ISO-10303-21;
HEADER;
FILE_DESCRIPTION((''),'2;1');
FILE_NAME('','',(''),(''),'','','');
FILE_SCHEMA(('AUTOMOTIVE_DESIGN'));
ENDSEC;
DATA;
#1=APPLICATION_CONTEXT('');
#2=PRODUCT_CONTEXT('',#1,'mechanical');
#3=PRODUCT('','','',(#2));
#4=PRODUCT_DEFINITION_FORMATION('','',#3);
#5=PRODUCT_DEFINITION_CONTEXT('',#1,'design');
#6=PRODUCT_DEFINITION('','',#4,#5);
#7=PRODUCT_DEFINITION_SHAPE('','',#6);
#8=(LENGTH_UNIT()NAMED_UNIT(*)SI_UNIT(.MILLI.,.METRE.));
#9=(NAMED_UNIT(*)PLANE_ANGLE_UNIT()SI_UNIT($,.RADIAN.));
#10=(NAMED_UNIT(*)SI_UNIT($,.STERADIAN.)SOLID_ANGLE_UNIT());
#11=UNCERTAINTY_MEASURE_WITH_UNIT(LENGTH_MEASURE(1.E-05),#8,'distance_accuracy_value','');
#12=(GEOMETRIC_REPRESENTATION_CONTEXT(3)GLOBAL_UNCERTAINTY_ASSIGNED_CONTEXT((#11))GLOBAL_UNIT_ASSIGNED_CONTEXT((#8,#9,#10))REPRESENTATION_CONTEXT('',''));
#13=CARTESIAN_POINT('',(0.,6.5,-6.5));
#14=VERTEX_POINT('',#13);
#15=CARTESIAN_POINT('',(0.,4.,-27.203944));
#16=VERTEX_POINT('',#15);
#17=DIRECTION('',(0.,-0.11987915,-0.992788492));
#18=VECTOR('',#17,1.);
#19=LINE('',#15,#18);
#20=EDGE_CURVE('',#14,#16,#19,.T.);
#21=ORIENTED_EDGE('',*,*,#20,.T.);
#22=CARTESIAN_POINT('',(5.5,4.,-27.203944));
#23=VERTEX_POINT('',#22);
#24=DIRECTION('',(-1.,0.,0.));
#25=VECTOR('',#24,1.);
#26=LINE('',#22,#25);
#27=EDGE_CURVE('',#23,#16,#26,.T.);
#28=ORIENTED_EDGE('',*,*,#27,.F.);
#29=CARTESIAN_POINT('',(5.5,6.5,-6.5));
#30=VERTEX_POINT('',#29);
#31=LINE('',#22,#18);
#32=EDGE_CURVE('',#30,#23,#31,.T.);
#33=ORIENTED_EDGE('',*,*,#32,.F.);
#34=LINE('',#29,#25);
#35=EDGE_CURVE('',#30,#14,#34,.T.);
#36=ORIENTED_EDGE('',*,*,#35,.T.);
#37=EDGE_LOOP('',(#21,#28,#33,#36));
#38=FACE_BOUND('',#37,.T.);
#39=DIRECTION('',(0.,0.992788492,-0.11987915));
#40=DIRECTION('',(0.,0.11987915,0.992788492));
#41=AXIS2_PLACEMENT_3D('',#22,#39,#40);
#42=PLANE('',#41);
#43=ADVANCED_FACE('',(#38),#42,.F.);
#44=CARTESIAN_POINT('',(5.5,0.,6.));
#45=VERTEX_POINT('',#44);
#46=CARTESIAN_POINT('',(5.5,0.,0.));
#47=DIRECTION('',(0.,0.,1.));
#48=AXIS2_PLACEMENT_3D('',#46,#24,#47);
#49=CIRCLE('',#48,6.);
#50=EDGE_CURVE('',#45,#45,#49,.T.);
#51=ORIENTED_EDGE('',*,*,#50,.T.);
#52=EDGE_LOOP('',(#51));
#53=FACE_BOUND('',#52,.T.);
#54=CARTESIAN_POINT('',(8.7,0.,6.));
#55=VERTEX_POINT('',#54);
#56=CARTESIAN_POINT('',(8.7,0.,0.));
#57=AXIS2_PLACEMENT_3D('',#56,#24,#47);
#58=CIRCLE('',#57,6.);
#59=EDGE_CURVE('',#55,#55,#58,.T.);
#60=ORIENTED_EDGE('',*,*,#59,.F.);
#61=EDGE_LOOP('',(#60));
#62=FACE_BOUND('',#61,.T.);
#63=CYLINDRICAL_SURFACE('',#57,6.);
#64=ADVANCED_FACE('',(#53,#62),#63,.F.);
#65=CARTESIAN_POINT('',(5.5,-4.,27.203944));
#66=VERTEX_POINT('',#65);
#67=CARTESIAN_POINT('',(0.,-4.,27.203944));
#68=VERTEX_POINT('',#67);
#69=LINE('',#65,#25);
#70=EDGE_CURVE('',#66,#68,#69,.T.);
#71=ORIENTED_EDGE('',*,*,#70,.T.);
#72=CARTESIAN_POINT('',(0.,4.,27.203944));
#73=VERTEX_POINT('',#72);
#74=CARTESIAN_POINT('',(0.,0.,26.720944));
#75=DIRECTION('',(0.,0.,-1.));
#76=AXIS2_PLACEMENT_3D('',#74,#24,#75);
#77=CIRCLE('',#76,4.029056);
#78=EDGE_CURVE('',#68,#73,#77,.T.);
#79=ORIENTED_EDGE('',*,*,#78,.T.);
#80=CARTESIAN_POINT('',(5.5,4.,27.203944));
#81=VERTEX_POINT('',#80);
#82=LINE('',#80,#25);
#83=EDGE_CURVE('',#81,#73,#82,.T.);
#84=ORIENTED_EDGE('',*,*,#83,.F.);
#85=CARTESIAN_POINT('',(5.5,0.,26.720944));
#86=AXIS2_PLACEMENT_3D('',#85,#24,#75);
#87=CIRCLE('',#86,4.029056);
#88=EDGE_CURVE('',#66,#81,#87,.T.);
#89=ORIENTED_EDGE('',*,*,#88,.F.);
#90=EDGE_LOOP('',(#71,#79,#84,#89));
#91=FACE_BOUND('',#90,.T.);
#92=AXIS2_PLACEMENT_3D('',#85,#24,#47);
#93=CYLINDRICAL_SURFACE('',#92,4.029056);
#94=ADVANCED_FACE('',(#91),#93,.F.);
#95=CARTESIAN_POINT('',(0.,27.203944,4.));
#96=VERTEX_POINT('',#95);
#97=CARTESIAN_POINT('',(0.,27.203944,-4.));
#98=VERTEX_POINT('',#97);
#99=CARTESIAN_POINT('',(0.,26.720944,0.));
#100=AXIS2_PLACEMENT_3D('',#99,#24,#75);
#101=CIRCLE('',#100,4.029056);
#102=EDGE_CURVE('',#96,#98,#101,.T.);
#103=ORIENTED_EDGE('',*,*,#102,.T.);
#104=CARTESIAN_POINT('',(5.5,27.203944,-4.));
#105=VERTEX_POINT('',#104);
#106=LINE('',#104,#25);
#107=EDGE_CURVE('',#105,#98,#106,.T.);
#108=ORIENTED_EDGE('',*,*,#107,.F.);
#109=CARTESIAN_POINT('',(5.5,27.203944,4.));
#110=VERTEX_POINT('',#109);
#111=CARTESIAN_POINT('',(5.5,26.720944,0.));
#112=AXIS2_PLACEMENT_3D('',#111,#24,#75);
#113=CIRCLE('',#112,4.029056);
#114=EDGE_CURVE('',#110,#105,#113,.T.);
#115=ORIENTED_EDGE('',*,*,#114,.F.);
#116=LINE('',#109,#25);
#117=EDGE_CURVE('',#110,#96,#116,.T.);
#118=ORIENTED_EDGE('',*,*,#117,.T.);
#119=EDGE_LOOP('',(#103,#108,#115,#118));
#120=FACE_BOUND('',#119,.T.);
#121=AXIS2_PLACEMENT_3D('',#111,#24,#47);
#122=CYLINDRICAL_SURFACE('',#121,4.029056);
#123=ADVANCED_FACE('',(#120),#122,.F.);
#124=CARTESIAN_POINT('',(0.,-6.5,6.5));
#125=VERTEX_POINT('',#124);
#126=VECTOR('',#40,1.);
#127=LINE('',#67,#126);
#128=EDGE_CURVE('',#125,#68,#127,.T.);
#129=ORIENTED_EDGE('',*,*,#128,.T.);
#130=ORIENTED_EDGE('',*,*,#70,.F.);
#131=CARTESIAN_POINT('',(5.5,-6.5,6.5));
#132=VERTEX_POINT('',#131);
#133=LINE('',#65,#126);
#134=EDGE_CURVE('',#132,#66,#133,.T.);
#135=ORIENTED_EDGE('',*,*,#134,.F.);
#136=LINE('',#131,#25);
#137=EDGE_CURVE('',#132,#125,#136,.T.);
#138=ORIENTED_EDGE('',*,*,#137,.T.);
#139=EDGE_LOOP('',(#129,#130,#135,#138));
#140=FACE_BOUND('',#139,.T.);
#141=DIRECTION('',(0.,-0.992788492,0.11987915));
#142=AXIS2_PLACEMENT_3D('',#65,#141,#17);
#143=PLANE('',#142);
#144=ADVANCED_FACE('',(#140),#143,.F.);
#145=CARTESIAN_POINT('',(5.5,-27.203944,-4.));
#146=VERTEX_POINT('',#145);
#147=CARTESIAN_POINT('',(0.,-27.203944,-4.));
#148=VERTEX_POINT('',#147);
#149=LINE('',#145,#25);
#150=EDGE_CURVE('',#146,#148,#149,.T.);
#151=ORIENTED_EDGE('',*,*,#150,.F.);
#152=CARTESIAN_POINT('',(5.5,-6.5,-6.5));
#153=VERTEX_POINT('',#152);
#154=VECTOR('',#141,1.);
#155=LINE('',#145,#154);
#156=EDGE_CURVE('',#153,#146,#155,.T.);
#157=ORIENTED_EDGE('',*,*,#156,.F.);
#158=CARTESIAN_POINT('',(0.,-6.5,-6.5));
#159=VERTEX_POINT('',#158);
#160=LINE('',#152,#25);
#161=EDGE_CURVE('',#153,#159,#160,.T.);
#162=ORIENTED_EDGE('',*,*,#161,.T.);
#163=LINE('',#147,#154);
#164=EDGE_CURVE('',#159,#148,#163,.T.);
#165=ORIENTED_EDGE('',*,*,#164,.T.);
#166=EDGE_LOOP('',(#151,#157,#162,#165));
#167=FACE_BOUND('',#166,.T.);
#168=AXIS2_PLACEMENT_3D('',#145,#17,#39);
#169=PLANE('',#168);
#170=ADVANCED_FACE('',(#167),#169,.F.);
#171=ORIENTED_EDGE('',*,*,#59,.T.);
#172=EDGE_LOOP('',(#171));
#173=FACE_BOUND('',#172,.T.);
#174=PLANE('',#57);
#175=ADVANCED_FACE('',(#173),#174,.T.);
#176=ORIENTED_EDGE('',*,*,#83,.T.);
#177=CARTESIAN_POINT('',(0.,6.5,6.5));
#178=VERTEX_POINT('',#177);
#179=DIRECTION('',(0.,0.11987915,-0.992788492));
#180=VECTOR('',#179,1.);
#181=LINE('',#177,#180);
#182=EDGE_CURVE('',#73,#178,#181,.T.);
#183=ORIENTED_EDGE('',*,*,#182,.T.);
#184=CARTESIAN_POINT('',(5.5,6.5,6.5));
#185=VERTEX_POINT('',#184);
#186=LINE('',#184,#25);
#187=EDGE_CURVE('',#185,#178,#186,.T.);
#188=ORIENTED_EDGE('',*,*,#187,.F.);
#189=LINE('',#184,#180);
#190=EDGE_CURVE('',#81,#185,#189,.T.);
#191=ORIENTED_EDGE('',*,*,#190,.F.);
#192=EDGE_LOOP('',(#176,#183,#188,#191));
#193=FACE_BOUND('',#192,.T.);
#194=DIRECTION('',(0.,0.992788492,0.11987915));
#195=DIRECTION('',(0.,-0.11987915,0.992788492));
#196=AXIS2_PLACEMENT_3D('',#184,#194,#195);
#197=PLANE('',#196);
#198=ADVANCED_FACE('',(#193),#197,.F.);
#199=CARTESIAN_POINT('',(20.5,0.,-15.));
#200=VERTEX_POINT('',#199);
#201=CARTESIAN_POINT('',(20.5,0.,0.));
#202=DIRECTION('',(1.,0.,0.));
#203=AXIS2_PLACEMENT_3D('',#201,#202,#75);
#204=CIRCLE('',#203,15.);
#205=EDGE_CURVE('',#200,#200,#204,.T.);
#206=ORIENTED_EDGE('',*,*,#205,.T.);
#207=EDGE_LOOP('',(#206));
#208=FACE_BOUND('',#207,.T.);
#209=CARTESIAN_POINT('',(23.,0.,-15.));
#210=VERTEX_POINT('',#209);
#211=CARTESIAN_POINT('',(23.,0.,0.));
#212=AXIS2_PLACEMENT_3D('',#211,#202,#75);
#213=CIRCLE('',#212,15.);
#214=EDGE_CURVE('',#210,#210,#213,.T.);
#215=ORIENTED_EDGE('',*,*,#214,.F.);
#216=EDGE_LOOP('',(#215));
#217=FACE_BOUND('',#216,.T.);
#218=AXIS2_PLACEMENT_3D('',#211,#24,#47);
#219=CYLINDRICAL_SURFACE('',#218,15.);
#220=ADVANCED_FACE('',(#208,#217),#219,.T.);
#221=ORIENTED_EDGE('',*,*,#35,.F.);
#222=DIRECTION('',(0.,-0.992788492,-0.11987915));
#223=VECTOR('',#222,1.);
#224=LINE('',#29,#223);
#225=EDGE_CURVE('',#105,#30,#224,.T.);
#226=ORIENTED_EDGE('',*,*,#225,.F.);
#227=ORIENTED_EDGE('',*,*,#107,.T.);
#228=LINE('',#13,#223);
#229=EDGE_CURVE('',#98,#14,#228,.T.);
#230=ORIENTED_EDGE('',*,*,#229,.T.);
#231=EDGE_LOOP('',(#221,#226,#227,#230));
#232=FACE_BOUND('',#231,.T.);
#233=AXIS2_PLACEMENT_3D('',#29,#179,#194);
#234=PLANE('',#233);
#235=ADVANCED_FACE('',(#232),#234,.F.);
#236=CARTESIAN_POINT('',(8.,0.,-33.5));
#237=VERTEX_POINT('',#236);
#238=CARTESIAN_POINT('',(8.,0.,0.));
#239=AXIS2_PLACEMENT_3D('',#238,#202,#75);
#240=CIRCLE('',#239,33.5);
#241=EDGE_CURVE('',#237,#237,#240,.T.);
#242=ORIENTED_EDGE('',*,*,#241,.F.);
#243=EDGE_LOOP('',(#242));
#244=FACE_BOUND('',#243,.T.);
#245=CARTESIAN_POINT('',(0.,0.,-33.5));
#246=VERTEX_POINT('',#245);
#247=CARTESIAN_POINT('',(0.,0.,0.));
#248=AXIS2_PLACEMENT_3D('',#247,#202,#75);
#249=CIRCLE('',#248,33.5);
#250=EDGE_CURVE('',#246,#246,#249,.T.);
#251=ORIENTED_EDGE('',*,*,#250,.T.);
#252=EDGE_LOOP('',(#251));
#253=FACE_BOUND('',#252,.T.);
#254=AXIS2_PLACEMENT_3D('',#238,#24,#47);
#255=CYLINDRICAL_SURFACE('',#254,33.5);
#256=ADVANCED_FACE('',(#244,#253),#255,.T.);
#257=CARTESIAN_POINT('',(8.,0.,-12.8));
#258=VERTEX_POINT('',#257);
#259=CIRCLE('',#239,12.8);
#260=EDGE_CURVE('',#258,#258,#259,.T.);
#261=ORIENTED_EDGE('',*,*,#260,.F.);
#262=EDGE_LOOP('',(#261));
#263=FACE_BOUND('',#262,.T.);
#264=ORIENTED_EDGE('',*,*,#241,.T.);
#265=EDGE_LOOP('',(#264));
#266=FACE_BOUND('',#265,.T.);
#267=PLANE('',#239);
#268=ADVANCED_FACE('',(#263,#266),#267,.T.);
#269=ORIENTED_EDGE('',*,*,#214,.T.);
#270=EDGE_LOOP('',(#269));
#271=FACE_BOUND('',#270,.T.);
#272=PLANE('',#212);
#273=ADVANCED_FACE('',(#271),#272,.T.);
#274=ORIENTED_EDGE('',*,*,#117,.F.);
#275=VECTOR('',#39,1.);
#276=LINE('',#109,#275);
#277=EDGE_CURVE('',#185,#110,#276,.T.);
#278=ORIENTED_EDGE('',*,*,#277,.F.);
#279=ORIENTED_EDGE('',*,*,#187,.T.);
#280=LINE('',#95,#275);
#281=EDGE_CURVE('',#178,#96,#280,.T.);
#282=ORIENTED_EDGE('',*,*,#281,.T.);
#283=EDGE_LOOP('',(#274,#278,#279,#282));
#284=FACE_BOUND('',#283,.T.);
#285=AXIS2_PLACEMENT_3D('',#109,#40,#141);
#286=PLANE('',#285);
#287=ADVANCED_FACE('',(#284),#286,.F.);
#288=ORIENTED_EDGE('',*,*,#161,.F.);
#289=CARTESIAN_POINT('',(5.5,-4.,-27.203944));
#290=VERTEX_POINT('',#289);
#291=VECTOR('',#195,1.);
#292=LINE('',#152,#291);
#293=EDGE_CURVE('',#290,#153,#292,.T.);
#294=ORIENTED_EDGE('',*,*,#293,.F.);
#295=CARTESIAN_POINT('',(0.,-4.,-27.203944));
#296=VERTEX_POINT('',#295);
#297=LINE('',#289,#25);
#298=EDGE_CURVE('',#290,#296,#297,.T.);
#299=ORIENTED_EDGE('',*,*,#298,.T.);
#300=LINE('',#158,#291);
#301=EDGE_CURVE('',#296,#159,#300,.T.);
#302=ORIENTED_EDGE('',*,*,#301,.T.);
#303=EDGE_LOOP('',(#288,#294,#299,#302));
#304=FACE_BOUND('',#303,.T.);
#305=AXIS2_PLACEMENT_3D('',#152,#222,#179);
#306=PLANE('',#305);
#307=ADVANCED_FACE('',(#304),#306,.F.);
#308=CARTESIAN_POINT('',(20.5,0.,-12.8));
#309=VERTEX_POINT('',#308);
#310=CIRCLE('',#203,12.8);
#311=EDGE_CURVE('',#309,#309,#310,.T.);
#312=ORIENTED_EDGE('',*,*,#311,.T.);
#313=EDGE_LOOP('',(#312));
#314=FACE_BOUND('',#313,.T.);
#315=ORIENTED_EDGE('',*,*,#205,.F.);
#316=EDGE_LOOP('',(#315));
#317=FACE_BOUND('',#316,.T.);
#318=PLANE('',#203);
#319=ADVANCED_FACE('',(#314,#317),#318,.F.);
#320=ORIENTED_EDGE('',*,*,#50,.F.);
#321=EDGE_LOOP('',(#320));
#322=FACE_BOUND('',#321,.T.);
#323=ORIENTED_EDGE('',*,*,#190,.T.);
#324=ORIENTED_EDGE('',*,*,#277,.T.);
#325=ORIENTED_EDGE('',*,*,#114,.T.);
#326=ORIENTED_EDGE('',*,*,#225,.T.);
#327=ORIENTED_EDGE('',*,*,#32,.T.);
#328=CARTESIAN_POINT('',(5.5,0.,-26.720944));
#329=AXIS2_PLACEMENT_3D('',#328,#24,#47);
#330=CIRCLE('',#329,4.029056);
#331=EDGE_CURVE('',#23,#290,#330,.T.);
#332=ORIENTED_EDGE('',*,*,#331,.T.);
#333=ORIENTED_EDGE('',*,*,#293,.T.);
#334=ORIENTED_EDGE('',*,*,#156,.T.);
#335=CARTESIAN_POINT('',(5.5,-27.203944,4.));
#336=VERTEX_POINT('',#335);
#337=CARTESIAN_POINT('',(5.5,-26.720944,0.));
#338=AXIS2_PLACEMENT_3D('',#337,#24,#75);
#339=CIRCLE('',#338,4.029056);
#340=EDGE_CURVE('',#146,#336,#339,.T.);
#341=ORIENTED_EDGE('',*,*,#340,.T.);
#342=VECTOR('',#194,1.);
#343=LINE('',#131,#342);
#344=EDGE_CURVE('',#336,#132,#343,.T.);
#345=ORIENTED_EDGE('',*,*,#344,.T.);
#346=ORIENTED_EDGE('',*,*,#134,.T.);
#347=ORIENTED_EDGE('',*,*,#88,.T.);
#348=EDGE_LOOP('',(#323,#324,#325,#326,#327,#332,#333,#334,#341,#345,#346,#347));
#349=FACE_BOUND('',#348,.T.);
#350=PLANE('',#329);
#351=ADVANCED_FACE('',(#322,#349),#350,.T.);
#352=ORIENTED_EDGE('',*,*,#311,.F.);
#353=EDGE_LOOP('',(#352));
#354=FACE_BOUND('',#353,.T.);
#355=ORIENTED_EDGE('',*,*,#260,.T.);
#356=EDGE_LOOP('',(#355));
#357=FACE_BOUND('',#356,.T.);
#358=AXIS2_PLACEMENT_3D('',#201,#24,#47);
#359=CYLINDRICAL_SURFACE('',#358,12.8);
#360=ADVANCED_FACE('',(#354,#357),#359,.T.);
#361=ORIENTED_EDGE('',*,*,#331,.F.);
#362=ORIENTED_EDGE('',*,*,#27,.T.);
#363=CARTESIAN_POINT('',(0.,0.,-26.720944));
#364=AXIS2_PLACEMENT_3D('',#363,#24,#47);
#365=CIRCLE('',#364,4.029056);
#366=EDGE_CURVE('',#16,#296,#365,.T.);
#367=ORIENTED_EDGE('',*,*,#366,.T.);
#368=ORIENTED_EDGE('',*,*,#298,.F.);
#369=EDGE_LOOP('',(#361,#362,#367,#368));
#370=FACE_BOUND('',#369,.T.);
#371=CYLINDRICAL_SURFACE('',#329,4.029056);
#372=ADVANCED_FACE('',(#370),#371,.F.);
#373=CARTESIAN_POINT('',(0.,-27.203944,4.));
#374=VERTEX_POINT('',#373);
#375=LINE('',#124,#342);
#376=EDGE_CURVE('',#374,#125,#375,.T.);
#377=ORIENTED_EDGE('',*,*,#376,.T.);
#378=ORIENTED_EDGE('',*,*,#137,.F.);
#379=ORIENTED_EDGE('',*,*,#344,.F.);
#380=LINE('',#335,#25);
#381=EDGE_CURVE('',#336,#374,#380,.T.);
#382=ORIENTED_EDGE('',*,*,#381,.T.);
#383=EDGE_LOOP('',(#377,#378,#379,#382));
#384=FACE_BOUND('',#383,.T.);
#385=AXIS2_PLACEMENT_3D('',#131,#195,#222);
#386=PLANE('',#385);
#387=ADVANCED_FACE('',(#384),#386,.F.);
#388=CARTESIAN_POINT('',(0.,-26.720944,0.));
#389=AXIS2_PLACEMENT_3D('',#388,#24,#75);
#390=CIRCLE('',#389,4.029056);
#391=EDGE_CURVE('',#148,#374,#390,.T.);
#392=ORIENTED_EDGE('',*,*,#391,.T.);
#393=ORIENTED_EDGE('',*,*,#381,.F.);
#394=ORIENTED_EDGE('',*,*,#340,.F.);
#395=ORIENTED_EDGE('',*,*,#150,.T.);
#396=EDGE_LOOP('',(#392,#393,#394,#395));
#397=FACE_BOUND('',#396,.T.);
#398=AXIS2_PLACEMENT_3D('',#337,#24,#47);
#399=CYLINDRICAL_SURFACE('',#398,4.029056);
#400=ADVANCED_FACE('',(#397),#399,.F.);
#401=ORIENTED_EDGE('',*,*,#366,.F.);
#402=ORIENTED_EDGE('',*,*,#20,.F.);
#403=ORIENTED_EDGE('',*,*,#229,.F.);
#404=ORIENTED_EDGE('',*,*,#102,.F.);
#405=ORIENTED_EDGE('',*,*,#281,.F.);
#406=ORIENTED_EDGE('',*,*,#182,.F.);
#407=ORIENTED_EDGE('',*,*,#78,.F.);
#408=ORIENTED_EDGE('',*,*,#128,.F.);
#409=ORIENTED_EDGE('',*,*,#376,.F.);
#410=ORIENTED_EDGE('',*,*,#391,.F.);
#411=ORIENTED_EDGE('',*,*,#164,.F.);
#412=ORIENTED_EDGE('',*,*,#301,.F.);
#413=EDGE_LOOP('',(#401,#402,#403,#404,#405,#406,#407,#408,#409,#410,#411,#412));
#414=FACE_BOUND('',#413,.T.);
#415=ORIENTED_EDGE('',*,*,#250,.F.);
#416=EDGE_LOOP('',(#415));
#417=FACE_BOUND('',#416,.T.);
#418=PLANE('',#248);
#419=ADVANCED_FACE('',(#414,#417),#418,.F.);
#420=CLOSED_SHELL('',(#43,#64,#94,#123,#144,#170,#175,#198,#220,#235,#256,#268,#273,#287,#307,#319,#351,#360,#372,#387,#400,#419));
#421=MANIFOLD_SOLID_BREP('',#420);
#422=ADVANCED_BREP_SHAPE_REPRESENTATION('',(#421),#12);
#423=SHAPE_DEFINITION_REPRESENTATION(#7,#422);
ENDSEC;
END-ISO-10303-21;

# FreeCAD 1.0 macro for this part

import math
import FreeCAD as App
import Part
import Sketcher

V = App.Vector
Q = App.Units.Quantity

doc = App.newDocument("Part")
params = doc.addObject("Spreadsheet::Sheet", "Params")
for row, (alias, value) in enumerate([
    ("sketch1_diameter", "67 mm"),
    ("pad1_length", "8 mm"),
    ("sketch2_diameter", "25.6 mm"),
    ("pad2_length", "12.5 mm"),
    ("sketch3_diameter", "30 mm"),
    ("pad3_length", "2.5 mm"),
    ("pocket1_length", "5.5 mm"),
    ("sketch5_diameter", "12 mm"),
    ("pocket2_length", "3.2 mm"),
], start=1):
    params.set(f"A{row}", alias)
    params.set(f"B{row}", "=" + value)
    params.setAlias(f"B{row}", alias)

body = doc.addObject("PartDesign::Body", "Body")

# Sketch on YZ plane
sketch1 = body.newObject("Sketcher::SketchObject", "Sketch")
sketch1.AttachmentSupport = (doc.getObject("YZ_Plane"), [""])
sketch1.MapMode = "FlatFace"
sketch1.addGeometry(Part.Circle(V(0, 0, 0), V(0, 0, 1), 33.5), False)
sketch1.addConstraint([
    Sketcher.Constraint("Coincident", 0, 3, -1, 1),
    Sketcher.Constraint("Diameter", 0, Q("67 mm")),
])
sketch1.setExpression("Constraints[1]", "Params.sketch1_diameter")
pad1 = body.newObject("PartDesign::Pad", "Pad")
pad1.Profile = sketch1
pad1.setExpression("Length", "Params.pad1_length")

# Sketch on YZ plane
sketch2 = body.newObject("Sketcher::SketchObject", "Sketch001")
sketch2.AttachmentSupport = (doc.getObject("YZ_Plane"), [""])
sketch2.MapMode = "FlatFace"
sketch2.AttachmentOffset = App.Placement(V(0, 0, 8), App.Rotation())
sketch2.addGeometry(Part.Circle(V(0, 0, 0), V(0, 0, 1), 12.8), False)
sketch2.addConstraint([
    Sketcher.Constraint("Coincident", 0, 3, -1, 1),
    Sketcher.Constraint("Diameter", 0, Q("25.6 mm")),
])
sketch2.setExpression("Constraints[1]", "Params.sketch2_diameter")
pad2 = body.newObject("PartDesign::Pad", "Pad001")
pad2.Profile = sketch2
pad2.setExpression("Length", "Params.pad2_length")

# Sketch on YZ plane
sketch3 = body.newObject("Sketcher::SketchObject", "Sketch002")
sketch3.AttachmentSupport = (doc.getObject("YZ_Plane"), [""])
sketch3.MapMode = "FlatFace"
sketch3.AttachmentOffset = App.Placement(V(0, 0, 20.5), App.Rotation())
sketch3.addGeometry(Part.Circle(V(0, 0, 0), V(0, 0, 1), 15), False)
sketch3.addConstraint([
    Sketcher.Constraint("Coincident", 0, 3, -1, 1),
    Sketcher.Constraint("Diameter", 0, Q("30 mm")),
])
sketch3.setExpression("Constraints[1]", "Params.sketch3_diameter")
pad3 = body.newObject("PartDesign::Pad", "Pad002")
pad3.Profile = sketch3
pad3.setExpression("Length", "Params.pad3_length")

# Sketch on YZ plane
sketch4 = body.newObject("Sketcher::SketchObject", "Sketch003")
sketch4.AttachmentSupport = (doc.getObject("YZ_Plane"), [""])
sketch4.MapMode = "FlatFace"
sketch4.addGeometry([
    Part.LineSegment(V(-6.5, -6.5, 0), V(-27.203944, -4, 0)),  # 0
    Part.ArcOfCircle(Part.Circle(V(-26.720944, 0, 0), V(0, 0, 1), 4.029056), math.radians(96.885128), math.radians(263.114872)),  # 1
    Part.LineSegment(V(-27.203944, 4, 0), V(-6.5, 6.5, 0)),  # 2
    Part.LineSegment(V(-6.5, 6.5, 0), V(-4, 27.203944, 0)),  # 3
    Part.ArcOfCircle(Part.Circle(V(0, 26.720944, 0), V(0, 0, 1), 4.029056), math.radians(6.885128), math.radians(173.114872)),  # 4
    Part.LineSegment(V(4, 27.203944, 0), V(6.5, 6.5, 0)),  # 5
    Part.LineSegment(V(6.5, 6.5, 0), V(27.203944, 4, 0)),  # 6
    Part.ArcOfCircle(Part.Circle(V(26.720944, 0, 0), V(0, 0, 1), 4.029056), math.radians(-83.114872), math.radians(83.114872)),  # 7
    Part.LineSegment(V(27.203944, -4, 0), V(6.5, -6.5, 0)),  # 8
    Part.LineSegment(V(6.5, -6.5, 0), V(4, -27.203944, 0)),  # 9
    Part.ArcOfCircle(Part.Circle(V(0, -26.720944, 0), V(0, 0, 1), 4.029056), math.radians(-173.114872), math.radians(-6.885128)),  # 10
    Part.LineSegment(V(-4, -27.203944, 0), V(-6.5, -6.5, 0)),  # 11
], False)
sketch4.addConstraint([
    Sketcher.Constraint("Tangent", 0, 2, 1, 2),
    Sketcher.Constraint("Tangent", 1, 1, 2, 1),
    Sketcher.Constraint("Coincident", 2, 2, 3, 1),
    Sketcher.Constraint("Tangent", 3, 2, 4, 2),
    Sketcher.Constraint("Tangent", 4, 1, 5, 1),
    Sketcher.Constraint("Coincident", 5, 2, 6, 1),
    Sketcher.Constraint("Tangent", 6, 2, 7, 2),
    Sketcher.Constraint("Tangent", 7, 1, 8, 1),
    Sketcher.Constraint("Coincident", 8, 2, 9, 1),
    Sketcher.Constraint("Tangent", 9, 2, 10, 2),
    Sketcher.Constraint("Tangent", 10, 1, 11, 1),
    Sketcher.Constraint("Coincident", 11, 2, 0, 1),
    Sketcher.Constraint("Equal", 1, 4),
    Sketcher.Constraint("Equal", 4, 7),
    Sketcher.Constraint("Equal", 7, 10),
    Sketcher.Constraint("Symmetric", 1, 3, 7, 3, -1, 1),
    Sketcher.Constraint("Symmetric", 4, 3, 10, 3, -1, 1),
    Sketcher.Constraint("Symmetric", 2, 2, 8, 2, -1, 1),
    Sketcher.Constraint("Symmetric", 5, 2, 11, 2, -1, 1),
    Sketcher.Constraint("Symmetric", 3, 2, 4, 1, -2),
    Sketcher.Constraint("Symmetric", 1, 1, 6, 2, -2),
    Sketcher.Constraint("Perpendicular", 0, 3),
    Sketcher.Constraint("Equal", 2, 3),
    Sketcher.Constraint("DistanceY", 0, 2, -1, 1, Q("4 mm")),
    Sketcher.Constraint("DistanceX", 2, 2, 5, 2, Q("13 mm")),
    Sketcher.Constraint("DistanceX", 0, 2, 1, 3, Q("0.483 mm")),
])
pocket1 = body.newObject("PartDesign::Pocket", "Pocket")
pocket1.Profile = sketch4
pocket1.setExpression("Length", "Params.pocket1_length")
pocket1.Reversed = True

# Sketch on YZ plane
sketch5 = body.newObject("Sketcher::SketchObject", "Sketch004")
sketch5.AttachmentSupport = (doc.getObject("YZ_Plane"), [""])
sketch5.MapMode = "FlatFace"
sketch5.AttachmentOffset = App.Placement(V(0, 0, 5.5), App.Rotation())
sketch5.addGeometry(Part.Circle(V(0, 0, 0), V(0, 0, 1), 6), False)
sketch5.addConstraint([
    Sketcher.Constraint("Coincident", 0, 3, -1, 1),
    Sketcher.Constraint("Diameter", 0, Q("12 mm")),
])
sketch5.setExpression("Constraints[1]", "Params.sketch5_diameter")
pocket2 = body.newObject("PartDesign::Pocket", "Pocket001")
pocket2.Profile = sketch5
pocket2.setExpression("Length", "Params.pocket2_length")
pocket2.Reversed = True

doc.recompute()
